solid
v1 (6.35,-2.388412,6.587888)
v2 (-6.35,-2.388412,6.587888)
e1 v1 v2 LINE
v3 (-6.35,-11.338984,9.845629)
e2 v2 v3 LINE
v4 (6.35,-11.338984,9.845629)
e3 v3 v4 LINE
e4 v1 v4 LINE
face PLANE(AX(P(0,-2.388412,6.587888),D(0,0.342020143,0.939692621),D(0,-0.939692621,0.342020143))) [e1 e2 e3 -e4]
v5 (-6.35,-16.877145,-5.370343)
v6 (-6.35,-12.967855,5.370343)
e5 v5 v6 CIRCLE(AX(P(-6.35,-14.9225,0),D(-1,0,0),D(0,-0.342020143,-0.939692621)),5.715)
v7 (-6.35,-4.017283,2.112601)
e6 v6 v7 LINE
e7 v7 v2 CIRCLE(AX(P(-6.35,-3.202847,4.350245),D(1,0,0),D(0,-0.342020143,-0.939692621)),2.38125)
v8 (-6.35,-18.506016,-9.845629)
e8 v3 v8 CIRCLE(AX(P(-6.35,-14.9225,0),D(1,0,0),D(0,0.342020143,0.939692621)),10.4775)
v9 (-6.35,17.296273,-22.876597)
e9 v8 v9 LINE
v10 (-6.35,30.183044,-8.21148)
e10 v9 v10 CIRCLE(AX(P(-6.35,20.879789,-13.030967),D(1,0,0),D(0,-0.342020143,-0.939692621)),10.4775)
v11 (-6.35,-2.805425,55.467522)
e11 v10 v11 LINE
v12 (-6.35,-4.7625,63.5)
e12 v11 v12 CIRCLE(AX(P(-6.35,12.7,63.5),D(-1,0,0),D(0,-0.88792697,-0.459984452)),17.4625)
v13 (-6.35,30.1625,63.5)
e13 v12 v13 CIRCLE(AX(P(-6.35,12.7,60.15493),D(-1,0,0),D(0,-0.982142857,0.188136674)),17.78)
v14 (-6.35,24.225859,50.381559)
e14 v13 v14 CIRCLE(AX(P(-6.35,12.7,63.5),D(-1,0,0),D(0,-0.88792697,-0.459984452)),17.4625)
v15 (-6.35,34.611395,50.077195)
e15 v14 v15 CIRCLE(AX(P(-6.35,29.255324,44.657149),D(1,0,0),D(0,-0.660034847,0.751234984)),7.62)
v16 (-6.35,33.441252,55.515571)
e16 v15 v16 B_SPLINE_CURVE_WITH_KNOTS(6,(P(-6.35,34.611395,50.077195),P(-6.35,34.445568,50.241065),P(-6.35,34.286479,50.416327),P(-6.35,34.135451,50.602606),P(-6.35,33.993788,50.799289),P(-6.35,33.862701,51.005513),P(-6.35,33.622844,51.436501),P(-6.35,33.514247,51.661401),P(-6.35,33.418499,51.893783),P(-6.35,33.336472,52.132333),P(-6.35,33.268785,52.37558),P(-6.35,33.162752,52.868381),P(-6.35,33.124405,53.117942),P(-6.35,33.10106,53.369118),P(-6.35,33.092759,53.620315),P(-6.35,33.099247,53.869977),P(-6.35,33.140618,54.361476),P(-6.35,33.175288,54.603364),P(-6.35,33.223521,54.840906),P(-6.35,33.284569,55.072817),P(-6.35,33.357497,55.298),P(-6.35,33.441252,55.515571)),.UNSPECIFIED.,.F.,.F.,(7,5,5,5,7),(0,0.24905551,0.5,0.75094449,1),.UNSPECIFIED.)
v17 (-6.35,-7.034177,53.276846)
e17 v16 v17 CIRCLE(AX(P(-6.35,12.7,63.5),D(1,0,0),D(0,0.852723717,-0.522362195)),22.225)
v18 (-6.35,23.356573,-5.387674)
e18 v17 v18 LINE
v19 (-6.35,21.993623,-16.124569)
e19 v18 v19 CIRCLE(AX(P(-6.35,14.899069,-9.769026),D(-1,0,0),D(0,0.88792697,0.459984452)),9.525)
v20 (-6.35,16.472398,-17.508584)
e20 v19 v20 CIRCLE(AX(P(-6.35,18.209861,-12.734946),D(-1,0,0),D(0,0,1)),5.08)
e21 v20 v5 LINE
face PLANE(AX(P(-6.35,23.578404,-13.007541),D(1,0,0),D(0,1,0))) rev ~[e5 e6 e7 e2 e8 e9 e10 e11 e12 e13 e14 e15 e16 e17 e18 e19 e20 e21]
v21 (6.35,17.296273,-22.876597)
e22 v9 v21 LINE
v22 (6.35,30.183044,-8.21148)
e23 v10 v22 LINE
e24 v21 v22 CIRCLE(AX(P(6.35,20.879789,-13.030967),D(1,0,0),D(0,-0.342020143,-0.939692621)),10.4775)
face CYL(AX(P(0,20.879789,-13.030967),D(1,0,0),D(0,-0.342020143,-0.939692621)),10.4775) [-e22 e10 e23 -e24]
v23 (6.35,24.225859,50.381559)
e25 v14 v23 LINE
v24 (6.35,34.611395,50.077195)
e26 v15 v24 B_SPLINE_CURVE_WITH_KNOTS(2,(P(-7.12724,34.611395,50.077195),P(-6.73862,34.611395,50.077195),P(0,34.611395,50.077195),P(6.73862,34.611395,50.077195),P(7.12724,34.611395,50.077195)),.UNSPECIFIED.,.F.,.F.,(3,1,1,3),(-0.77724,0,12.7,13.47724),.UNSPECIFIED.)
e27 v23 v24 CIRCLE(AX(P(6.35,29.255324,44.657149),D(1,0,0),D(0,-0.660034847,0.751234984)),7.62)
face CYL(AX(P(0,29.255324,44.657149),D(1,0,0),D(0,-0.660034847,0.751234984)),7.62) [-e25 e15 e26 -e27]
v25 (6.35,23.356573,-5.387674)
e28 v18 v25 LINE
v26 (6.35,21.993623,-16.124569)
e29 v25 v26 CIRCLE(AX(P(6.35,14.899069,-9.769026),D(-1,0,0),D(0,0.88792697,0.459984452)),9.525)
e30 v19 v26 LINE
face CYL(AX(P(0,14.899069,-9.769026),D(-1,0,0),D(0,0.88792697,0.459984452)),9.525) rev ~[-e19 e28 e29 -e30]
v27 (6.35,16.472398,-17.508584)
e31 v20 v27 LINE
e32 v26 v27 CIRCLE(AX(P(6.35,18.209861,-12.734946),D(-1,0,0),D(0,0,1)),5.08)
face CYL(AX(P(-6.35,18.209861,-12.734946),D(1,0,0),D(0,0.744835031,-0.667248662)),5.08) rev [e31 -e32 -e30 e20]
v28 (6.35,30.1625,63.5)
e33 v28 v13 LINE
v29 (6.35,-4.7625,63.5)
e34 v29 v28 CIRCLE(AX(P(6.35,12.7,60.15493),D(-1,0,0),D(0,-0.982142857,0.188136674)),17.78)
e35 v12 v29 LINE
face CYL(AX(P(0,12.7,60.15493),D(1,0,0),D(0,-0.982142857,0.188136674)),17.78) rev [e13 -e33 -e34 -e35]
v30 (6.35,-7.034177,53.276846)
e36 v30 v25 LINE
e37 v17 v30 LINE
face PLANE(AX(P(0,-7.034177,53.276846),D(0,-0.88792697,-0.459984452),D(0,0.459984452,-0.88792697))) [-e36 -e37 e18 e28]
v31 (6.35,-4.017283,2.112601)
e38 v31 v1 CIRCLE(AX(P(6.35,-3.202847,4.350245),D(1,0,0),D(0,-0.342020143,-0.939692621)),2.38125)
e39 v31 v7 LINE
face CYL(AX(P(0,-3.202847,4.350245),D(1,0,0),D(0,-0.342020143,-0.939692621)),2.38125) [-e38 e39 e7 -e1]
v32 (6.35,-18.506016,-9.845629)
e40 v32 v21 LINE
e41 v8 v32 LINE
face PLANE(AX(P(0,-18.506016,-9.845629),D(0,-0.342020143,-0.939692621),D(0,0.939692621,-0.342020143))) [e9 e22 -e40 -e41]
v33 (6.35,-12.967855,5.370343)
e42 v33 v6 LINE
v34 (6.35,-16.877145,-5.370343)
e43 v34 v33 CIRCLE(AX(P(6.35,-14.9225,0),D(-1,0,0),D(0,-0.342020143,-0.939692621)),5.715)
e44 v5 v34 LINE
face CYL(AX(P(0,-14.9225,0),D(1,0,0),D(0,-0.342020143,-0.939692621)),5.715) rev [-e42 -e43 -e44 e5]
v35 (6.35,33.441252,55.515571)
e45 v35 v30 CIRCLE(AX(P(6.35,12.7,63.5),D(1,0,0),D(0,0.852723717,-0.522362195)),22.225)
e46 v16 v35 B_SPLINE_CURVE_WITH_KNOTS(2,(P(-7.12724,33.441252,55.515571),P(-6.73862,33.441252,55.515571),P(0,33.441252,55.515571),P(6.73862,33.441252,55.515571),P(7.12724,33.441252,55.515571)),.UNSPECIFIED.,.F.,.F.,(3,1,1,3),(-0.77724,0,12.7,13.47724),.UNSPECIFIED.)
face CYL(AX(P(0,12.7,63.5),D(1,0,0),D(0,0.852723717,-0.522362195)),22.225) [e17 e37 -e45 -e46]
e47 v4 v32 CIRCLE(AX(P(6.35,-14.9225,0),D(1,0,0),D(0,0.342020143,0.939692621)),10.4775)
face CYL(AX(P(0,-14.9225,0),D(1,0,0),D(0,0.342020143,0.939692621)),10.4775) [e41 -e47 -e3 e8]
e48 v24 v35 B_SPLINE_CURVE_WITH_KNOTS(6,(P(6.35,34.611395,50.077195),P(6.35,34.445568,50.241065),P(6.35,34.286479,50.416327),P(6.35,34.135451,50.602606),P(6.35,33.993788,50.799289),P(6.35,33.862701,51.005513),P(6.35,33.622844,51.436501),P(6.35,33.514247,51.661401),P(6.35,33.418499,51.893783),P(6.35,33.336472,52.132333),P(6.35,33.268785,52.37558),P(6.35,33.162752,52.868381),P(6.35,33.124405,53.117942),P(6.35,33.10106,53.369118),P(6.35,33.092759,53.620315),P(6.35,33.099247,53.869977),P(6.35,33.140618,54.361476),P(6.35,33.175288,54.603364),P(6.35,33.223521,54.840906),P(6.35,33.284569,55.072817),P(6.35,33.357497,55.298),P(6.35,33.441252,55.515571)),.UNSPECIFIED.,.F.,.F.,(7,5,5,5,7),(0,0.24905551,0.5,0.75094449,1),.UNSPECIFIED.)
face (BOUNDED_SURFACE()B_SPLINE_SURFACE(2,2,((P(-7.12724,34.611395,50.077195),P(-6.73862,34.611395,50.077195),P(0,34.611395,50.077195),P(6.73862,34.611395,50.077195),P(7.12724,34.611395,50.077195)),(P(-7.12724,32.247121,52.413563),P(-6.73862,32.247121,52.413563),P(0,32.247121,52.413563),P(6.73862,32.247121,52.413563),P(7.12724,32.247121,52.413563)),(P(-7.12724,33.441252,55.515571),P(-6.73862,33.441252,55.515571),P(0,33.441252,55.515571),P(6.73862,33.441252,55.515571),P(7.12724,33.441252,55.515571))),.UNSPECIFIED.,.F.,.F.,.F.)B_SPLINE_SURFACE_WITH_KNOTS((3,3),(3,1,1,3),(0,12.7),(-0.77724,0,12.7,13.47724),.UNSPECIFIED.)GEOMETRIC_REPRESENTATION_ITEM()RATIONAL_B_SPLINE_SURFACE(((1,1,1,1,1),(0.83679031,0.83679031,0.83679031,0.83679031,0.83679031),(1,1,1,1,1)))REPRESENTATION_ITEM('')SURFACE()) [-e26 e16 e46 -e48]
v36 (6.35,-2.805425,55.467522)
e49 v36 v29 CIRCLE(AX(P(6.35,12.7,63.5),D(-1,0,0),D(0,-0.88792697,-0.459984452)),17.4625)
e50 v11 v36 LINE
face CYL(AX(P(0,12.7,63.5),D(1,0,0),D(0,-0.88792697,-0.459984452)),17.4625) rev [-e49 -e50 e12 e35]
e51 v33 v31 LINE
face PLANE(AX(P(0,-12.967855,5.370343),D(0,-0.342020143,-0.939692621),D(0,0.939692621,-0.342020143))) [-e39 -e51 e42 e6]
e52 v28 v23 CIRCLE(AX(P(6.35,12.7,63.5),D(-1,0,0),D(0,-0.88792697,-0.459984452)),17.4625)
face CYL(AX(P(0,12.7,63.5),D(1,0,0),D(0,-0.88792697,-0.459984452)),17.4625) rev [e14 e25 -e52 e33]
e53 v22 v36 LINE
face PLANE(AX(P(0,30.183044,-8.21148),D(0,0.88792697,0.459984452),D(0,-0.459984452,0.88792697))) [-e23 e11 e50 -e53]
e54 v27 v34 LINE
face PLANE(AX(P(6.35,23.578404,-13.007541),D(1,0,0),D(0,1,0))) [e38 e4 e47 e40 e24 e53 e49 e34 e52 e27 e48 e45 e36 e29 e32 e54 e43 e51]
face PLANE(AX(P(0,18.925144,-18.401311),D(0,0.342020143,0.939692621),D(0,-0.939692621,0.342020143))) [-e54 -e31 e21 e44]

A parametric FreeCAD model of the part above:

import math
import FreeCAD as App
import Part
import Sketcher
from FreeCAD import Vector
Q = App.Units.Quantity


def edges_at(feature, points):
    """Names of the edges that pass closest to the given points."""
    edges = feature.Shape.Edges
    near = lambda p: min(range(len(edges)), key=lambda i: edges[i].distToShape(Part.Vertex(*p))[0])
    return sorted({f"Edge{near(p) + 1}" for p in points})

doc = App.newDocument("Part")
body = doc.addObject("PartDesign::Body", "Body")

# Sketch on YZ plane
sketch1 = body.newObject("Sketcher::SketchObject", "Sketch")
sketch1.AttachmentSupport = (doc.getObject("YZ_Plane"), [""])
sketch1.MapMode = "FlatFace"
sketch1.addGeometry(Part.LineSegment(Vector(-2.388412, 6.587888, 0), Vector(-11.338984, 9.845629, 0)), False)
sketch1.addGeometry(Part.ArcOfCircle(Part.Circle(Vector(-14.9225, 0, 0), Vector(0, 0, 1), 10.4775), math.radians(70), math.radians(250)), False)
sketch1.addGeometry(Part.LineSegment(Vector(-18.506016, -9.845629, 0), Vector(17.296273, -22.876597, 0)), False)
sketch1.addGeometry(Part.ArcOfCircle(Part.Circle(Vector(20.879789, -13.030967, 0), Vector(0, 0, 1), 10.4775), math.radians(-110), math.radians(27.386104)), False)
sketch1.addGeometry(Part.LineSegment(Vector(30.183044, -8.21148, 0), Vector(-2.805425, 55.467522, 0)), False)
sketch1.addGeometry(Part.ArcOfCircle(Part.Circle(Vector(12.7, 63.5, 0), Vector(0, 0, 1), 17.4625), math.radians(-48.69747), math.radians(207.386104)), False)
sketch1.addGeometry(Part.ArcOfCircle(Part.Circle(Vector(29.255324, 44.657149, 0), Vector(0, 0, 1), 7.62), math.radians(131.30253), math.radians(431.669601)), False)
sketch1.addGeometry(Part.ArcOfCircle(Part.Circle(Vector(12.7, 63.5, 0), Vector(0, 0, 1), 22.225), math.radians(-31.490837), math.radians(207.386104)), False)
sketch1.addGeometry(Part.LineSegment(Vector(-7.034177, 53.276846, 0), Vector(25.954291, -10.402156, 0)), False)
sketch1.addGeometry(Part.ArcOfCircle(Part.Circle(Vector(20.879789, -13.030967, 0), Vector(0, 0, 1), 5.715), math.radians(-110), math.radians(27.386104)), False)
sketch1.addGeometry(Part.LineSegment(Vector(18.925144, -18.401311, 0), Vector(-16.877145, -5.370343, 0)), False)
sketch1.addGeometry(Part.ArcOfCircle(Part.Circle(Vector(-14.9225, 0, 0), Vector(0, 0, 1), 5.715), math.radians(70), math.radians(250)), False)
sketch1.addGeometry(Part.LineSegment(Vector(-12.967855, 5.370343, 0), Vector(-4.017283, 2.112601, 0)), False)
sketch1.addGeometry(Part.ArcOfCircle(Part.Circle(Vector(-3.202847, 4.350245, 0), Vector(0, 0, 1), 2.38125), math.radians(-110), math.radians(70)), False)
sketch1.addConstraint(Sketcher.Constraint("Tangent", 0, 2, 1, 1))
sketch1.addConstraint(Sketcher.Constraint("Tangent", 1, 2, 2, 1))
sketch1.addConstraint(Sketcher.Constraint("Tangent", 2, 2, 3, 1))
sketch1.addConstraint(Sketcher.Constraint("Tangent", 3, 2, 4, 1))
sketch1.addConstraint(Sketcher.Constraint("Tangent", 4, 2, 5, 2))
sketch1.addConstraint(Sketcher.Constraint("Tangent", 5, 1, 6, 1))
sketch1.addConstraint(Sketcher.Constraint("Coincident", 6, 2, 7, 1))
sketch1.addConstraint(Sketcher.Constraint("Tangent", 7, 2, 8, 1))
sketch1.addConstraint(Sketcher.Constraint("Tangent", 8, 2, 9, 2))
sketch1.addConstraint(Sketcher.Constraint("Tangent", 9, 1, 10, 1))
sketch1.addConstraint(Sketcher.Constraint("Tangent", 10, 2, 11, 2))
sketch1.addConstraint(Sketcher.Constraint("Tangent", 11, 1, 12, 1))
sketch1.addConstraint(Sketcher.Constraint("Tangent", 12, 2, 13, 1))
sketch1.addConstraint(Sketcher.Constraint("Tangent", 13, 2, 0, 1))
sketch1.addConstraint(Sketcher.Constraint("Coincident", 7, 3, 5, 3))
sketch1.addConstraint(Sketcher.Constraint("Coincident", 9, 3, 3, 3))
sketch1.addConstraint(Sketcher.Constraint("Coincident", 11, 3, 1, 3))
sketch1.addConstraint(Sketcher.Constraint("Equal", 1, 3))
sketch1.addConstraint(Sketcher.Constraint("Equal", 9, 11))
sketch1.addConstraint(Sketcher.Constraint("PointOnObject", 1, 3, -1))
sketch1.addConstraint(Sketcher.Constraint("Parallel", 0, 2))
sketch1.addConstraint(Sketcher.Constraint("Parallel", 4, 8))
sketch1.addConstraint(Sketcher.Constraint("Parallel", 10, 12))
sketch1.addConstraint(Sketcher.Constraint("Radius", 6, Q("0.3 in")))
sketch1.addConstraint(Sketcher.Constraint("Angle", 0, Q("160 deg")))
sketch1.addConstraint(Sketcher.Constraint("Radius", 5, Q("0.6875 in")))
sketch1.addConstraint(Sketcher.Constraint("Radius", 7, Q("0.875 in")))
sketch1.addConstraint(Sketcher.Constraint("Radius", 9, Q("0.225 in")))
sketch1.addConstraint(Sketcher.Constraint("Distance", 2, Q("1.5 in")))
sketch1.addConstraint(Sketcher.Constraint("DistanceX", -1, 1, 5, 3, Q("0.5 in")))
sketch1.addConstraint(Sketcher.Constraint("DistanceY", -1, 1, 5, 3, Q("2.5 in")))
sketch1.addConstraint(Sketcher.Constraint("Distance", 0, Q("0.375 in")))
sketch1.addConstraint(Sketcher.Constraint("DistanceX", 1, 3, -1, 1, Q("0.5875 in")))
sketch1.addConstraint(Sketcher.Constraint("DistanceY", -1, 1, 6, 2, Q("51.8905 mm")))
pad1 = body.newObject("PartDesign::Pad", "Pad")
pad1.Profile = sketch1
pad1.Length = Q("0.5 in")
pad1.Midplane = True

# Sketch on YZ plane
sketch2 = body.newObject("Sketcher::SketchObject", "Sketch001")
sketch2.AttachmentSupport = (doc.getObject("YZ_Plane"), [""])
sketch2.MapMode = "FlatFace"
sketch2.addGeometry(Part.LineSegment(Vector(25.954291, -10.402156, 0), Vector(23.356573, -5.387674, 0)), False)
sketch2.addGeometry(Part.ArcOfCircle(Part.Circle(Vector(14.899069, -9.769026, 0), Vector(0, 0, 1), 9.525), math.radians(-64.99578), math.radians(27.386104)), False)
sketch2.addGeometry(Part.ArcOfCircle(Part.Circle(Vector(20.879789, -13.030967, 0), Vector(0, 0, 1), 5.715), math.radians(-110), math.radians(27.386104)), False)
sketch2.addGeometry(Part.ArcOfCircle(Part.Circle(Vector(12.7, 63.5, 0), Vector(0, 0, 1), 17.4625), math.radians(0), math.radians(180)), False)
sketch2.addGeometry(Part.ArcOfCircle(Part.Circle(Vector(12.7, 60.15493, 0), Vector(0, 0, 1), 17.78), math.radians(10.844063), math.radians(169.155937)), False)
sketch2.addConstraint(Sketcher.Constraint("Tangent", 0, 2, 1, 2))
sketch2.addConstraint(Sketcher.Constraint("Coincident", 1, 1, 2, 1))
sketch2.addConstraint(Sketcher.Constraint("Tangent", 2, 2, 0, 1))
sketch2.addConstraint(Sketcher.Constraint("Coincident", 3, 1, 4, 1))
sketch2.addConstraint(Sketcher.Constraint("Coincident", 4, 2, 3, 2))
sketch2.addConstraint(Sketcher.Constraint("Horizontal", 3, 1, 4, 2))
sketch2.addConstraint(Sketcher.Constraint("Radius", 4, Q("0.7 in")))
sketch2.addConstraint(Sketcher.Constraint("Radius", 1, Q("0.375 in")))
sketch2.addConstraint(Sketcher.Constraint("Radius", 2, Q("0.225 in")))
sketch2.addConstraint(Sketcher.Constraint("Radius", 3, Q("0.6875 in")))
sketch2.addConstraint(Sketcher.Constraint("DistanceX", -1, 1, 3, 3, Q("0.5 in")))
sketch2.addConstraint(Sketcher.Constraint("DistanceY", -1, 1, 3, 3, Q("2.5 in")))
sketch2.addConstraint(Sketcher.Constraint("DistanceY", -1, 1, 3, 1, Q("2.5 in")))
sketch2.addConstraint(Sketcher.Constraint("DistanceX", -1, 1, 1, 3, Q("14.899069 mm")))
sketch2.addConstraint(Sketcher.Constraint("DistanceX", -1, 1, 2, 3, Q("20.879789 mm")))
sketch2.addConstraint(Sketcher.Constraint("DistanceY", 1, 1, -1, 1, Q("18.401311 mm")))
sketch2.addConstraint(Sketcher.Constraint("DistanceX", -1, 1, 2, 2, Q("25.954291 mm")))
pad2 = body.newObject("PartDesign::Pad", "Pad001")
pad2.Profile = sketch2
pad2.Length = Q("0.5 in")
pad2.Midplane = True
doc.recompute()

fillet = body.newObject("PartDesign::Fillet", "Fillet")
fillet.Base = (pad2, edges_at(pad2, [(0, 31.652, 51.891)]))
fillet.Radius = Q("0.2 in")
doc.recompute()

fillet2 = body.newObject("PartDesign::Fillet", "Fillet001")
fillet2.Base = (fillet, edges_at(fillet, [(0, 18.925, -18.401)]))
fillet2.Radius = Q("0.2 in")

doc.recompute()
